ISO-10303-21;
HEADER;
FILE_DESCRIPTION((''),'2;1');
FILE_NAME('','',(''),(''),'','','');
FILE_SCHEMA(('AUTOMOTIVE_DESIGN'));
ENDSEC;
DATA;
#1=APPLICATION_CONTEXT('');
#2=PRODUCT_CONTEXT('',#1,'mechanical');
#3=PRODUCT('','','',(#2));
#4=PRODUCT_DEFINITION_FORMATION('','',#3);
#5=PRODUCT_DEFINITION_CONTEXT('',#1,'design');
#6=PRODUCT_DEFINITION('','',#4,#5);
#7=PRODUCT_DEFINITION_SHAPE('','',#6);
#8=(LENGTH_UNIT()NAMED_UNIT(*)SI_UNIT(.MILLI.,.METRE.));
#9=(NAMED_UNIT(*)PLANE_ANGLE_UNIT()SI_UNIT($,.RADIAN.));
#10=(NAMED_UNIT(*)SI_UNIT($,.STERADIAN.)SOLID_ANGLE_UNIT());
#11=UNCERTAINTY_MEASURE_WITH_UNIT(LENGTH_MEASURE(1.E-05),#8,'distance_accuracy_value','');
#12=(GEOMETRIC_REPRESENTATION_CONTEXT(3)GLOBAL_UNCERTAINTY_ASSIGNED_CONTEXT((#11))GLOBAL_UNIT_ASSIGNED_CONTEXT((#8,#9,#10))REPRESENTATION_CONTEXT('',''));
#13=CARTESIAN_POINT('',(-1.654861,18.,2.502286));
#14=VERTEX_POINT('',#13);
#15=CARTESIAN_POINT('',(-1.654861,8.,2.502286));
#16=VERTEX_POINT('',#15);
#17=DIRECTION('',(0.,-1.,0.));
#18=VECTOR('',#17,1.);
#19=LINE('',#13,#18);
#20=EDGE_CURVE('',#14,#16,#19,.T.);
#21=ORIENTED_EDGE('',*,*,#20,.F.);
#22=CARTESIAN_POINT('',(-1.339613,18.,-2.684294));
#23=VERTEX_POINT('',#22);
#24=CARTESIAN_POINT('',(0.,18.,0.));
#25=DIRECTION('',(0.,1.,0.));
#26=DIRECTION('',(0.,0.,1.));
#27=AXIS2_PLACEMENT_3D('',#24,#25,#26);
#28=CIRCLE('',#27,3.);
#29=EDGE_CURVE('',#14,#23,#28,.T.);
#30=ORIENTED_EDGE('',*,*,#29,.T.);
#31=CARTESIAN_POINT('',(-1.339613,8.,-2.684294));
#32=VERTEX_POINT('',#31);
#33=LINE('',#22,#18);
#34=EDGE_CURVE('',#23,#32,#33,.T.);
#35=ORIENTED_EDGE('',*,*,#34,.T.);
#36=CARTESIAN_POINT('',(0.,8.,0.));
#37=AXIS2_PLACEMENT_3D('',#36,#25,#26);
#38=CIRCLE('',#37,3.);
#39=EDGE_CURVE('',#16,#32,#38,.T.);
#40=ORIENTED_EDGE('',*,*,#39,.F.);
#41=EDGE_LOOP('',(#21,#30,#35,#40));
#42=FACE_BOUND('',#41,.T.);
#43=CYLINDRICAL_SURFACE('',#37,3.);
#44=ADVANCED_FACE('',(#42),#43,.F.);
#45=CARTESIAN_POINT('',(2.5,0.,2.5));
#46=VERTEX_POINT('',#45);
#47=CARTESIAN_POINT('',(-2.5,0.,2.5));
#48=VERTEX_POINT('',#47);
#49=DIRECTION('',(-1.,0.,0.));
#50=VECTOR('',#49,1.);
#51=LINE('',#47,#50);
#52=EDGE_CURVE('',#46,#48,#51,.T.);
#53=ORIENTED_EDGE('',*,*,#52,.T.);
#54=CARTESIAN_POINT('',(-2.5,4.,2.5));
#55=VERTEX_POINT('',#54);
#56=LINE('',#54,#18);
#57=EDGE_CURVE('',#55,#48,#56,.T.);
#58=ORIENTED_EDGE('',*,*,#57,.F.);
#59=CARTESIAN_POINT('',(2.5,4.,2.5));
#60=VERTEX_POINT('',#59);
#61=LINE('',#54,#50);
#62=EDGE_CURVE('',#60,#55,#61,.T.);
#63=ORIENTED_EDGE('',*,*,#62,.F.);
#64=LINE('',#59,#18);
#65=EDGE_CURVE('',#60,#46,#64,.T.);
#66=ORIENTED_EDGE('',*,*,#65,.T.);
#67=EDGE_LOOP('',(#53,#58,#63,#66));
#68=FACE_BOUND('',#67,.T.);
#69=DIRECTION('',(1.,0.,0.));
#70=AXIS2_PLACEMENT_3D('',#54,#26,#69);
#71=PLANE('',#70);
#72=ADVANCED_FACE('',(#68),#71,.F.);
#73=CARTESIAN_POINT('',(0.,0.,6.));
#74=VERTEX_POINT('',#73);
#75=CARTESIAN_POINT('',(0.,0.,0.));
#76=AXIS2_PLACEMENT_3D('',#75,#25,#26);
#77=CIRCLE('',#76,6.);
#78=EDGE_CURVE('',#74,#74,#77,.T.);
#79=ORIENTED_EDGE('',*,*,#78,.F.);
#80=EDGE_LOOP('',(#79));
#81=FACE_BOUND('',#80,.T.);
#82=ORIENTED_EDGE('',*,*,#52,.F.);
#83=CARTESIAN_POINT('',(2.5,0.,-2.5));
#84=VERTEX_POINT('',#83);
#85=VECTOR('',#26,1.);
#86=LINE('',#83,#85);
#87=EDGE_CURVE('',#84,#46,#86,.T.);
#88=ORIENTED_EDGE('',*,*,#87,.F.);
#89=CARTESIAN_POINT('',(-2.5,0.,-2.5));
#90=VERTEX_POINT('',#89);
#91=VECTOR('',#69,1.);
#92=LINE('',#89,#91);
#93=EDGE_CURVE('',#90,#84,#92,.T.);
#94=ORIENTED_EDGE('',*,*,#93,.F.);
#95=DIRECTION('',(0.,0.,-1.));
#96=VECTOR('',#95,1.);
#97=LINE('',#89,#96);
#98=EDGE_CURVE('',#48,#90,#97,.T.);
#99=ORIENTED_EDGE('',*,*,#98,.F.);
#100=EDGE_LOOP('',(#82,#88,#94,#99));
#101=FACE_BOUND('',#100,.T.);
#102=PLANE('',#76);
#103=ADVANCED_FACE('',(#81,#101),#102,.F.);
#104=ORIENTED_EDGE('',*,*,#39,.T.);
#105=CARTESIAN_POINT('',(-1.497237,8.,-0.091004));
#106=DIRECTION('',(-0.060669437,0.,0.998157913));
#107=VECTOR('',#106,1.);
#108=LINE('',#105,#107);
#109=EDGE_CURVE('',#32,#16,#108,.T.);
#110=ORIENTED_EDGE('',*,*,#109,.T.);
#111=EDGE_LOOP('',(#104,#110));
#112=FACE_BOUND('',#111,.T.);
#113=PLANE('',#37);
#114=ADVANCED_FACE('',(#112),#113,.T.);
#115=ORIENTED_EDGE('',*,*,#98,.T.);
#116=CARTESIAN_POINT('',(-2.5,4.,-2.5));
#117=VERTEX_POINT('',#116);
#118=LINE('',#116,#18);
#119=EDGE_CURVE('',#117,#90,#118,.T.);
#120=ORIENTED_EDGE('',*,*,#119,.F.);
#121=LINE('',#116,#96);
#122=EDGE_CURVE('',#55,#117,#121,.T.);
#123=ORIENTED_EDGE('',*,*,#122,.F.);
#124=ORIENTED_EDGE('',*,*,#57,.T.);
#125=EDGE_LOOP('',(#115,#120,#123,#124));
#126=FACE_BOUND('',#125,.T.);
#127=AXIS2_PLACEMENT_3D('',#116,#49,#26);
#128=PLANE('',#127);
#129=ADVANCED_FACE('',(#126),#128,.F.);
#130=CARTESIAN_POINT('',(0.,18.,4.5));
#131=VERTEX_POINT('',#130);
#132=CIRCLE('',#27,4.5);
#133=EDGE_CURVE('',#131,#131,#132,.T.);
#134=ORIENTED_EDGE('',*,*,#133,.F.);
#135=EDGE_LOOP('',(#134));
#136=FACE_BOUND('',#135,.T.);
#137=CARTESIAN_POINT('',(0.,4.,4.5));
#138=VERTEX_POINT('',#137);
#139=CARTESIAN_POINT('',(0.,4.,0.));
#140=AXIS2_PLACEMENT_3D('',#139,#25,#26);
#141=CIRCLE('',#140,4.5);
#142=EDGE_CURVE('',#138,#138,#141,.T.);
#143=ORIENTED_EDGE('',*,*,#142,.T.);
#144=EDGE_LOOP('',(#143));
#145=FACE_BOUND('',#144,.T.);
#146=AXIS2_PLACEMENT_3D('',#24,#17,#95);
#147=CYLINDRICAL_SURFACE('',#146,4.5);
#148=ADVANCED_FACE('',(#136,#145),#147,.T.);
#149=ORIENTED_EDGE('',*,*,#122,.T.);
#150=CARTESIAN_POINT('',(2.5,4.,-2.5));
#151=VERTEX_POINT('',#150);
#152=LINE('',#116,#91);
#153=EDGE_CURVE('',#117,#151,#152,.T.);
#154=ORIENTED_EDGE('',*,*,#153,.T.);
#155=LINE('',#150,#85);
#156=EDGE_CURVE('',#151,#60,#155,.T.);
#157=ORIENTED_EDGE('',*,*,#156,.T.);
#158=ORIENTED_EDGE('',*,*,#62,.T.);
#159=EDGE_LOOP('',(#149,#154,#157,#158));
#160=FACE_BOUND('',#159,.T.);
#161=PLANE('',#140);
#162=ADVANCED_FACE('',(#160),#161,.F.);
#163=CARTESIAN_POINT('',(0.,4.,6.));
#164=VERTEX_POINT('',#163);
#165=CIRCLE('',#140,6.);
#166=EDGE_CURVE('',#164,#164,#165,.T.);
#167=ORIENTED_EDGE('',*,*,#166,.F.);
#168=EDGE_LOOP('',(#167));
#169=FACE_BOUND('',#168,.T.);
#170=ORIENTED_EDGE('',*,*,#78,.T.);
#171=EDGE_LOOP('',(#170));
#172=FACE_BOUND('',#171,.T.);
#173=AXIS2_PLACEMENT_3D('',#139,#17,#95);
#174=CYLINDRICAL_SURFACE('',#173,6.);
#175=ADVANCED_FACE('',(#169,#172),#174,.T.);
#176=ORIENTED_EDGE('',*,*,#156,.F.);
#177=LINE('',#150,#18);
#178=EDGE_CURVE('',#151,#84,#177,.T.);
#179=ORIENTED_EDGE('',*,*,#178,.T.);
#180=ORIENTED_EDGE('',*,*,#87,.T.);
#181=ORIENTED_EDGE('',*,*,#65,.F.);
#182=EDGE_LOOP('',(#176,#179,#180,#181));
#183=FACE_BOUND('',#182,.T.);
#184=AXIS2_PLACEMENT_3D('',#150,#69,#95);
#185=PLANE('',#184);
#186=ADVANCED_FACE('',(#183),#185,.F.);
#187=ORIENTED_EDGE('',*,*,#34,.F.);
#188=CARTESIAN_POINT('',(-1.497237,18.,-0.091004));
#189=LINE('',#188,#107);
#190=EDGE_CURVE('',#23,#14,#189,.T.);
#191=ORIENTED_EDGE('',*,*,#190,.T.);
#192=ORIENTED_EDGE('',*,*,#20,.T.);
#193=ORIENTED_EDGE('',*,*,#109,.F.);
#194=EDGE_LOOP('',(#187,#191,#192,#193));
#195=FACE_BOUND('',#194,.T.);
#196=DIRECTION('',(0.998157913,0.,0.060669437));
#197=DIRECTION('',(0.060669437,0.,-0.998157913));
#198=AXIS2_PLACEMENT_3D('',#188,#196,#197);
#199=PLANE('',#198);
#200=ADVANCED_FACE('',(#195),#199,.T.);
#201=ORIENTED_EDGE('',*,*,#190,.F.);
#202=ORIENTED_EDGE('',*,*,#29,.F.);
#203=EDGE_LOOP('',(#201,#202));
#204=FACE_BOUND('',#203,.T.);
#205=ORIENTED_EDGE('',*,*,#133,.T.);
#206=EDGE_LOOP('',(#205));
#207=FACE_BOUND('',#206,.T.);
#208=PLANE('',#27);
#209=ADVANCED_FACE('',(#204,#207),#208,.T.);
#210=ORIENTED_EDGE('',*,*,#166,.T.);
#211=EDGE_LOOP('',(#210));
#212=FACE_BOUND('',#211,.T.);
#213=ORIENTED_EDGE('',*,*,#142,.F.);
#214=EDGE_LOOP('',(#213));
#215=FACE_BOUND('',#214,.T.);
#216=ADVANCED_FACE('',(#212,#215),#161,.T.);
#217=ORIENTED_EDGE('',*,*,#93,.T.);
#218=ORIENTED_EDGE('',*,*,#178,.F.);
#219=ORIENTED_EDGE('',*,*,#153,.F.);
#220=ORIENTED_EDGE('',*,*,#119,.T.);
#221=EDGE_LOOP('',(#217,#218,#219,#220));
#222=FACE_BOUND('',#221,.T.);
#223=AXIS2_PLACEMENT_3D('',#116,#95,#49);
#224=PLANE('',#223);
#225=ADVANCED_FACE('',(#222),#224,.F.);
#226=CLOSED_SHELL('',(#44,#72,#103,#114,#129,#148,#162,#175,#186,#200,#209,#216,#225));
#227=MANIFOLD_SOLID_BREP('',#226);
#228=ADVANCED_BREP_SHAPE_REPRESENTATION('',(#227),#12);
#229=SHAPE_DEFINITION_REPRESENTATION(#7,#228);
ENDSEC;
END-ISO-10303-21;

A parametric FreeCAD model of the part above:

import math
import FreeCAD as App
import Part
import Sketcher
from FreeCAD import Vector
Q = App.Units.Quantity

doc = App.newDocument("Part")
body = doc.addObject("PartDesign::Body", "Body")

# Sketch on XZ plane
sketch1 = doc.addObject("Sketcher::SketchObject", "Sketch")
body.addObject(sketch1)
sketch1.AttachmentSupport = (doc.XZ_Plane, [""])
sketch1.MapMode = "FlatFace"
sketch1.addGeometry(Part.Circle(Vector(0, 0, 0), Vector(0, 0, 1), 6), False)
sketch1.addConstraint([
    Sketcher.Constraint("Coincident", 0, 3, -1, 1),
    Sketcher.Constraint("Diameter", 0, Q("12 mm")),
])
pad1 = doc.addObject("PartDesign::Pad", "Pad")
body.addObject(pad1)
pad1.Profile = sketch1
pad1.Length = 4
pad1.Reversed = True

# Sketch on XZ plane
sketch2 = doc.addObject("Sketcher::SketchObject", "Sketch001")
body.addObject(sketch2)
sketch2.AttachmentSupport = (doc.XZ_Plane, [""])
sketch2.MapMode = "FlatFace"
sketch2.AttachmentOffset = App.Placement(Vector(0, 0, -4), App.Rotation())
sketch2.addGeometry(Part.Circle(Vector(0, 0, 0), Vector(0, 0, 1), 4.5), False)
sketch2.addConstraint([
    Sketcher.Constraint("Coincident", 0, 3, -1, 1),
    Sketcher.Constraint("Diameter", 0, Q("9 mm")),
])
pad2 = doc.addObject("PartDesign::Pad", "Pad001")
body.addObject(pad2)
pad2.Profile = sketch2
pad2.Length = 14
pad2.Reversed = True

# Sketch on XZ plane
sketch3 = doc.addObject("Sketcher::SketchObject", "Sketch002")
body.addObject(sketch3)
sketch3.AttachmentSupport = (doc.XZ_Plane, [""])
sketch3.MapMode = "FlatFace"
sketch3.addGeometry([
    Part.LineSegment(Vector(2.5, -2.5, 0), Vector(2.5, 2.5, 0)),
    Part.LineSegment(Vector(2.5, 2.5, 0), Vector(-2.5, 2.5, 0)),
    Part.LineSegment(Vector(-2.5, 2.5, 0), Vector(-2.5, -2.5, 0)),
    Part.LineSegment(Vector(-2.5, -2.5, 0), Vector(2.5, -2.5, 0)),
], False)
sketch3.addConstraint([
    Sketcher.Constraint("Coincident", 0, 2, 1, 1),
    Sketcher.Constraint("Coincident", 1, 2, 2, 1),
    Sketcher.Constraint("Coincident", 2, 2, 3, 1),
    Sketcher.Constraint("Coincident", 3, 2, 0, 1),
    Sketcher.Constraint("Vertical", 0),
    Sketcher.Constraint("Horizontal", 1),
    Sketcher.Constraint("Vertical", 2),
    Sketcher.Constraint("Horizontal", 3),
    Sketcher.Constraint("Symmetric", 0, 2, 2, 2, -1, 1),
    Sketcher.Constraint("Equal", 3, 0),
    Sketcher.Constraint("DistanceX", 1, 2, 1, 1, Q("5 mm")),
])
pocket1 = doc.addObject("PartDesign::Pocket", "Pocket")
body.addObject(pocket1)
pocket1.Profile = sketch3
pocket1.Length = 4

# Sketch on XZ plane
sketch4 = doc.addObject("Sketcher::SketchObject", "Sketch003")
body.addObject(sketch4)
sketch4.AttachmentSupport = (doc.XZ_Plane, [""])
sketch4.MapMode = "FlatFace"
sketch4.AttachmentOffset = App.Placement(Vector(0, 0, -18), App.Rotation())
sketch4.addGeometry(Part.Circle(Vector(0, 0, 0), Vector(0, 0, 1), 3), False)
sketch4.addConstraint([
    Sketcher.Constraint("Coincident", 0, 3, -1, 1),
    Sketcher.Constraint("Diameter", 0, Q("6 mm")),
])
pocket2 = doc.addObject("PartDesign::Pocket", "Pocket001")
body.addObject(pocket2)
pocket2.Profile = sketch4
pocket2.Length = 10
pocket2.Reversed = True

# Sketch on XZ plane
sketch5 = doc.addObject("Sketcher::SketchObject", "Sketch004")
body.addObject(sketch5)
sketch5.AttachmentSupport = (doc.XZ_Plane, [""])
sketch5.MapMode = "FlatFace"
sketch5.AttachmentOffset = App.Placement(Vector(0, 0, -18), App.Rotation())
sketch5.addGeometry([
    Part.LineSegment(Vector(-1.654861, 2.502286, 0), Vector(-1.339613, -2.684294, 0)),
    Part.ArcOfCircle(Part.Circle(Vector(0, 0, 0), Vector(0, 0, 1), 3), math.radians(123.478239), math.radians(243.478239)),
], False)
sketch5.addConstraint([
    Sketcher.Constraint("Coincident", 0, 1, 1, 1),
    Sketcher.Constraint("Coincident", 1, 2, 0, 2),
    Sketcher.Constraint("Coincident", 1, 3, -1, 1),
    Sketcher.Constraint("Radius", 1, Q("3 mm")),
    Sketcher.Constraint("DistanceX", 0, 1, -1, 1, Q("1.654861 mm")),
    Sketcher.Constraint("DistanceY", 1, 2, 0, 1, Q("5.186581 mm")),
])
pad3 = doc.addObject("PartDesign::Pad", "Pad002")
body.addObject(pad3)
pad3.Profile = sketch5
pad3.Length = 10

doc.recompute()
